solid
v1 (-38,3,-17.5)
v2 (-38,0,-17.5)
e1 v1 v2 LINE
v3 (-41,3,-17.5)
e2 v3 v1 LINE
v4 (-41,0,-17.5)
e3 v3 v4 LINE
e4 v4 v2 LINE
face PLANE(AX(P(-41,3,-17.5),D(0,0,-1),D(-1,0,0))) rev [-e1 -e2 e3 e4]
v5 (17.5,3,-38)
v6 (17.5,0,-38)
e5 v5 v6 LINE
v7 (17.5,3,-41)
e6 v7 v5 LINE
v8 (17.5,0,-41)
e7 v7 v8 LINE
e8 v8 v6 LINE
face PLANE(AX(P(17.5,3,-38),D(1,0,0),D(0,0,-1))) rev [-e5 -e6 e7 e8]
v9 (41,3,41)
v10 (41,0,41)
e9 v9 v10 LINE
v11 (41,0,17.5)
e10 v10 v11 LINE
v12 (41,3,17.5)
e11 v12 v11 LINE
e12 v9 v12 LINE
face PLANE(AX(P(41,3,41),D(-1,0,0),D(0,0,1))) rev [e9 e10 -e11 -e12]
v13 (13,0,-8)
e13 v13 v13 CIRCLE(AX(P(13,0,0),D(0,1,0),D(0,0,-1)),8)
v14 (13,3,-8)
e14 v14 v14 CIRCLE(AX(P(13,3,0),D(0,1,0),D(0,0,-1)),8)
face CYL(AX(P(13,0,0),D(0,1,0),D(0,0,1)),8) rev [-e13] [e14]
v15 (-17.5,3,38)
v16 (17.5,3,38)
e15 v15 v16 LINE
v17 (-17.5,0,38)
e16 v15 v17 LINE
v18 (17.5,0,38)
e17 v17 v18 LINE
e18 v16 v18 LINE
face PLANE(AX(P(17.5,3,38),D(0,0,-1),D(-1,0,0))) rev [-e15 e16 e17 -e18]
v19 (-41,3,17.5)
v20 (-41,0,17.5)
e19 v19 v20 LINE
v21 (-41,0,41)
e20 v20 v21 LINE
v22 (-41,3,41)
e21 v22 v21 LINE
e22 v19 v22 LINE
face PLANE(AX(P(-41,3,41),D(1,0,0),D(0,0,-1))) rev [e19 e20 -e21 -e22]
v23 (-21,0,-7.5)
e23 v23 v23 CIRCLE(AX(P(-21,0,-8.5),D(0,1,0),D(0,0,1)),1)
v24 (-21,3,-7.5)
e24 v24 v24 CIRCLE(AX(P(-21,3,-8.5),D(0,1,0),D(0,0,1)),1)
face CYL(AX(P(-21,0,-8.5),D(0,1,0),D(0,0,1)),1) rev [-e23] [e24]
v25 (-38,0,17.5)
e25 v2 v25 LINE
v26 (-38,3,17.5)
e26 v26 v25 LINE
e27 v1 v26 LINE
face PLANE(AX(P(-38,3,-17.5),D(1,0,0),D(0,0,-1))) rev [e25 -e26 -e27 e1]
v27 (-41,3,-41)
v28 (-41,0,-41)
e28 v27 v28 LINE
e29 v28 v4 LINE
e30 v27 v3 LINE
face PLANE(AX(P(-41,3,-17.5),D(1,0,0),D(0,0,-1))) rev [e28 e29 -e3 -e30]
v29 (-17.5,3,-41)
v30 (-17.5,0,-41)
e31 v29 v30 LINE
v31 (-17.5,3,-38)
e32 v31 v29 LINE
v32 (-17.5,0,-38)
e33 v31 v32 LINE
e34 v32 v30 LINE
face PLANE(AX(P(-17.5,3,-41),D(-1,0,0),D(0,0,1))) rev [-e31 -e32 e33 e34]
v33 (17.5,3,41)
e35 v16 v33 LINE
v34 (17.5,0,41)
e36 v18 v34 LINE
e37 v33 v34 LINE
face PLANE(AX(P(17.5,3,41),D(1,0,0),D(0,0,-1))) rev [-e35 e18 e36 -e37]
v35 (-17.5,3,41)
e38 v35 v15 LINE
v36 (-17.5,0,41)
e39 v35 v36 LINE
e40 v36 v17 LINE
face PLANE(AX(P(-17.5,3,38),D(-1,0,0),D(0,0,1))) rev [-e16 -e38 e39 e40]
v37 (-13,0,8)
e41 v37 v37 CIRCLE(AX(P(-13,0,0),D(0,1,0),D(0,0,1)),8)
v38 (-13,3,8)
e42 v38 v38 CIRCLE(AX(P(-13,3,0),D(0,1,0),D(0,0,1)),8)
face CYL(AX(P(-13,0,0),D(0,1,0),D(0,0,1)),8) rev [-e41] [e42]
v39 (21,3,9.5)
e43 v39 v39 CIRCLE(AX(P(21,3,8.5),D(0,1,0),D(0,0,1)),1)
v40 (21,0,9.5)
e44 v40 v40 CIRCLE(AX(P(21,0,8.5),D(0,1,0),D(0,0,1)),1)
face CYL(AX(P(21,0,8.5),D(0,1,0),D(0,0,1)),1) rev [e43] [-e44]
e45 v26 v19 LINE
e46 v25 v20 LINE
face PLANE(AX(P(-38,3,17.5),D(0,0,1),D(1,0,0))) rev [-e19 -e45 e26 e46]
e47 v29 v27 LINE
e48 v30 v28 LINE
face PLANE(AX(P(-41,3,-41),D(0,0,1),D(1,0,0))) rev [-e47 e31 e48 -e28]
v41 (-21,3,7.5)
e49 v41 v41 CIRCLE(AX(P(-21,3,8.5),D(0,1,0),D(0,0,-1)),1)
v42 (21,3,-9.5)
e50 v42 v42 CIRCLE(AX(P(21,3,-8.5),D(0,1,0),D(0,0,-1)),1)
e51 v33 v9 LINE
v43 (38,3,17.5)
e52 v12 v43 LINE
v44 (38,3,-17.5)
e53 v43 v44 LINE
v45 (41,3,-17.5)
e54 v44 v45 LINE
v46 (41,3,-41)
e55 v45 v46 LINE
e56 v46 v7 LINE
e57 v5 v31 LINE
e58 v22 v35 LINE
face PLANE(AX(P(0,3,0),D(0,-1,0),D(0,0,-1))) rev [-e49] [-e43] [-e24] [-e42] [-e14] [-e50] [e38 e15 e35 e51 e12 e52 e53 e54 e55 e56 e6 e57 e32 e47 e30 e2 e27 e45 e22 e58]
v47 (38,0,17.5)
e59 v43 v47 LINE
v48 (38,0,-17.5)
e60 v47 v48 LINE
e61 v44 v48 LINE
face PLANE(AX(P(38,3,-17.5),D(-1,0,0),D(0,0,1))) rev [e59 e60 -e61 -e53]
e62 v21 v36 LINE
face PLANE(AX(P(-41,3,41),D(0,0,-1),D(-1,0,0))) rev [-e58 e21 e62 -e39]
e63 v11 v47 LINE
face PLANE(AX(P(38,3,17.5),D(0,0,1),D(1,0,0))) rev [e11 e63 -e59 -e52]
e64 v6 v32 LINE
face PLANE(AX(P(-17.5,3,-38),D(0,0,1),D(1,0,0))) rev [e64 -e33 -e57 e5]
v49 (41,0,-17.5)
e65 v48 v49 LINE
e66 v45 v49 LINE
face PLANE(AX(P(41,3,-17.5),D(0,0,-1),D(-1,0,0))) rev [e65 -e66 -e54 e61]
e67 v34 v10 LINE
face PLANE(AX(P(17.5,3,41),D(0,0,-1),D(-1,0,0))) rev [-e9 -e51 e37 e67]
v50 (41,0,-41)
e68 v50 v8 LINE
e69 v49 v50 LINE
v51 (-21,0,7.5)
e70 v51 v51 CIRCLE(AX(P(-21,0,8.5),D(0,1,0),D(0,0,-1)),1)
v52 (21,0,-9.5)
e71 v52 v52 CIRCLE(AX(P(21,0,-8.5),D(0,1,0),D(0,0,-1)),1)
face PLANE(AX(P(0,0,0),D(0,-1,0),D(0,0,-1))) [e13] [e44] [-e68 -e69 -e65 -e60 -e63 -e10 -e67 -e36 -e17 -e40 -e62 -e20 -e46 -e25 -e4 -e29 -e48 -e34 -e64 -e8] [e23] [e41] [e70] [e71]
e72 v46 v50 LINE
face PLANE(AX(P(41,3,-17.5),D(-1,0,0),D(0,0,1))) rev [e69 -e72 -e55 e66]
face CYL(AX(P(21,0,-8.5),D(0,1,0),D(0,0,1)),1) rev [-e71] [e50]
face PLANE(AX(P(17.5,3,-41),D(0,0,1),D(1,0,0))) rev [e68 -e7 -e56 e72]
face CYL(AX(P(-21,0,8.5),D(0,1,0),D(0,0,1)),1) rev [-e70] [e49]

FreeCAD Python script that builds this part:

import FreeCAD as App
import Part
import Sketcher

doc = App.newDocument("Part")
params = doc.addObject("Spreadsheet::Sheet", "Params")
for row, (alias, value) in enumerate([
    ("sketch1_width", "35 mm"),
    ("sketch1_width2", "3 mm"),
    ("sketch1_width3", "23.5 mm"),
    ("pad1_length", "3 mm"),
    ("sketch2_diameter", "16 mm"),
    ("sketch2_diameter2", "2 mm"),
    ("pocket1_length", "3 mm"),
], start=1):
    params.set(f"A{row}", alias)
    params.set(f"B{row}", "=" + value)
    params.setAlias(f"B{row}", alias)

body = doc.addObject("PartDesign::Body", "Body")

# Sketch on XZ plane
sketch1 = doc.addObject("Sketcher::SketchObject", "Sketch")
body.addObject(sketch1)
sketch1.AttachmentSupport = (doc.XZ_Plane, [""])
sketch1.MapMode = "FlatFace"
sketch1.addGeometry([
    Part.LineSegment(App.Vector(-41, 41, 0), App.Vector(-17.5, 41, 0)),  # 0
    Part.LineSegment(App.Vector(-17.5, 41, 0), App.Vector(-17.5, 38, 0)),  # 1
    Part.LineSegment(App.Vector(-17.5, 38, 0), App.Vector(17.5, 38, 0)),  # 2
    Part.LineSegment(App.Vector(17.5, 38, 0), App.Vector(17.5, 41, 0)),  # 3
    Part.LineSegment(App.Vector(17.5, 41, 0), App.Vector(41, 41, 0)),  # 4
    Part.LineSegment(App.Vector(41, 41, 0), App.Vector(41, 17.5, 0)),  # 5
    Part.LineSegment(App.Vector(41, 17.5, 0), App.Vector(38, 17.5, 0)),  # 6
    Part.LineSegment(App.Vector(38, 17.5, 0), App.Vector(38, -17.5, 0)),  # 7
    Part.LineSegment(App.Vector(38, -17.5, 0), App.Vector(41, -17.5, 0)),  # 8
    Part.LineSegment(App.Vector(41, -17.5, 0), App.Vector(41, -41, 0)),  # 9
    Part.LineSegment(App.Vector(41, -41, 0), App.Vector(17.5, -41, 0)),  # 10
    Part.LineSegment(App.Vector(17.5, -41, 0), App.Vector(17.5, -38, 0)),  # 11
    Part.LineSegment(App.Vector(17.5, -38, 0), App.Vector(-17.5, -38, 0)),  # 12
    Part.LineSegment(App.Vector(-17.5, -38, 0), App.Vector(-17.5, -41, 0)),  # 13
    Part.LineSegment(App.Vector(-17.5, -41, 0), App.Vector(-41, -41, 0)),  # 14
    Part.LineSegment(App.Vector(-41, -41, 0), App.Vector(-41, -17.5, 0)),  # 15
    Part.LineSegment(App.Vector(-41, -17.5, 0), App.Vector(-38, -17.5, 0)),  # 16
    Part.LineSegment(App.Vector(-38, -17.5, 0), App.Vector(-38, 17.5, 0)),  # 17
    Part.LineSegment(App.Vector(-38, 17.5, 0), App.Vector(-41, 17.5, 0)),  # 18
    Part.LineSegment(App.Vector(-41, 17.5, 0), App.Vector(-41, 41, 0)),  # 19
], False)
sketch1.addConstraint([
    Sketcher.Constraint("Coincident", 0, 2, 1, 1),
    Sketcher.Constraint("Coincident", 1, 2, 2, 1),
    Sketcher.Constraint("Coincident", 2, 2, 3, 1),
    Sketcher.Constraint("Coincident", 3, 2, 4, 1),
    Sketcher.Constraint("Coincident", 4, 2, 5, 1),
    Sketcher.Constraint("Coincident", 5, 2, 6, 1),
    Sketcher.Constraint("Coincident", 6, 2, 7, 1),
    Sketcher.Constraint("Coincident", 7, 2, 8, 1),
    Sketcher.Constraint("Coincident", 8, 2, 9, 1),
    Sketcher.Constraint("Coincident", 9, 2, 10, 1),
    Sketcher.Constraint("Coincident", 10, 2, 11, 1),
    Sketcher.Constraint("Coincident", 11, 2, 12, 1),
    Sketcher.Constraint("Coincident", 12, 2, 13, 1),
    Sketcher.Constraint("Coincident", 13, 2, 14, 1),
    Sketcher.Constraint("Coincident", 14, 2, 15, 1),
    Sketcher.Constraint("Coincident", 15, 2, 16, 1),
    Sketcher.Constraint("Coincident", 16, 2, 17, 1),
    Sketcher.Constraint("Coincident", 17, 2, 18, 1),
    Sketcher.Constraint("Coincident", 18, 2, 19, 1),
    Sketcher.Constraint("Coincident", 19, 2, 0, 1),
    Sketcher.Constraint("Horizontal", 0),
    Sketcher.Constraint("Vertical", 1),
    Sketcher.Constraint("Horizontal", 2),
    Sketcher.Constraint("Vertical", 3),
    Sketcher.Constraint("Horizontal", 4),
    Sketcher.Constraint("Vertical", 5),
    Sketcher.Constraint("Horizontal", 6),
    Sketcher.Constraint("Vertical", 7),
    Sketcher.Constraint("Horizontal", 8),
    Sketcher.Constraint("Vertical", 9),
    Sketcher.Constraint("Horizontal", 10),
    Sketcher.Constraint("Vertical", 11),
    Sketcher.Constraint("Horizontal", 12),
    Sketcher.Constraint("Vertical", 13),
    Sketcher.Constraint("Horizontal", 14),
    Sketcher.Constraint("Vertical", 15),
    Sketcher.Constraint("Horizontal", 16),
    Sketcher.Constraint("Vertical", 17),
    Sketcher.Constraint("Horizontal", 18),
    Sketcher.Constraint("Vertical", 19),
    Sketcher.Constraint("Symmetric", 0, 2, 10, 2, -1, 1),
    Sketcher.Constraint("Symmetric", 2, 2, 12, 2, -1, 1),
    Sketcher.Constraint("Symmetric", 4, 2, 14, 2, -1, 1),
    Sketcher.Constraint("Symmetric", 6, 2, 16, 2, -1, 1),
    Sketcher.Constraint("Symmetric", 8, 2, 18, 2, -1, 1),
    Sketcher.Constraint("Symmetric", 0, 2, 3, 2, -2),
    Sketcher.Constraint("Symmetric", 8, 2, 15, 2, -2),
    Sketcher.Constraint("Equal", 18, 1),
    Sketcher.Constraint("Equal", 14, 5),
    Sketcher.Constraint("Equal", 12, 7),
    Sketcher.Constraint("DistanceX", 2, 1, 2, 2, 35.0),
    Sketcher.Constraint("DistanceX", 6, 2, 6, 1, 3.0),
    Sketcher.Constraint("DistanceX", 0, 1, 0, 2, 23.5),
])
sketch1.setExpression("Constraints[50]", "Params.sketch1_width")
sketch1.setExpression("Constraints[51]", "Params.sketch1_width2")
sketch1.setExpression("Constraints[52]", "Params.sketch1_width3")
pad1 = doc.addObject("PartDesign::Pad", "Pad")
body.addObject(pad1)
pad1.Profile = sketch1
pad1.setExpression("Length", "Params.pad1_length")
pad1.Reversed = True

# Sketch on XZ plane
sketch2 = doc.addObject("Sketcher::SketchObject", "Sketch001")
body.addObject(sketch2)
sketch2.AttachmentSupport = (doc.XZ_Plane, [""])
sketch2.MapMode = "FlatFace"
sketch2.AttachmentOffset = App.Placement(App.Vector(0, 0, -3), App.Rotation())
sketch2.addGeometry([
    Part.Circle(App.Vector(-13, 0, 0), App.Vector(0, 0, 1), 8),  # 0
    Part.Circle(App.Vector(-21, -8.5, 0), App.Vector(0, 0, 1), 1),  # 1
    Part.Circle(App.Vector(-21, 8.5, 0), App.Vector(0, 0, 1), 1),  # 2
    Part.Circle(App.Vector(21, 8.5, 0), App.Vector(0, 0, 1), 1),  # 3
    Part.Circle(App.Vector(21, -8.5, 0), App.Vector(0, 0, 1), 1),  # 4
    Part.Circle(App.Vector(13, 0, 0), App.Vector(0, 0, 1), 8),  # 5
], False)
sketch2.addConstraint([
    Sketcher.Constraint("Equal", 1, 2),
    Sketcher.Constraint("Equal", 2, 3),
    Sketcher.Constraint("Equal", 3, 4),
    Sketcher.Constraint("Equal", 0, 5),
    Sketcher.Constraint("Symmetric", 1, 3, 3, 3, -1, 1),
    Sketcher.Constraint("Symmetric", 2, 3, 4, 3, -1, 1),
    Sketcher.Constraint("Symmetric", 0, 3, 5, 3, -1, 1),
    Sketcher.Constraint("Symmetric", 2, 3, 3, 3, -2),
    Sketcher.Constraint("PointOnObject", 0, 3, -1),
    Sketcher.Constraint("Diameter", 0, 16.0),
    Sketcher.Constraint("Diameter", 1, 2.0),
    Sketcher.Constraint("DistanceX", 0, 3, -1, 1, 13.0),
    Sketcher.Constraint("DistanceX", 1, 3, -1, 1, 21.0),
    Sketcher.Constraint("DistanceY", 1, 3, 2, 3, 17.0),
])
sketch2.setExpression("Constraints[9]", "Params.sketch2_diameter")
sketch2.setExpression("Constraints[10]", "Params.sketch2_diameter2")
pocket1 = doc.addObject("PartDesign::Pocket", "Pocket")
body.addObject(pocket1)
pocket1.Profile = sketch2
pocket1.setExpression("Length", "Params.pocket1_length")
pocket1.Reversed = True

doc.recompute()
